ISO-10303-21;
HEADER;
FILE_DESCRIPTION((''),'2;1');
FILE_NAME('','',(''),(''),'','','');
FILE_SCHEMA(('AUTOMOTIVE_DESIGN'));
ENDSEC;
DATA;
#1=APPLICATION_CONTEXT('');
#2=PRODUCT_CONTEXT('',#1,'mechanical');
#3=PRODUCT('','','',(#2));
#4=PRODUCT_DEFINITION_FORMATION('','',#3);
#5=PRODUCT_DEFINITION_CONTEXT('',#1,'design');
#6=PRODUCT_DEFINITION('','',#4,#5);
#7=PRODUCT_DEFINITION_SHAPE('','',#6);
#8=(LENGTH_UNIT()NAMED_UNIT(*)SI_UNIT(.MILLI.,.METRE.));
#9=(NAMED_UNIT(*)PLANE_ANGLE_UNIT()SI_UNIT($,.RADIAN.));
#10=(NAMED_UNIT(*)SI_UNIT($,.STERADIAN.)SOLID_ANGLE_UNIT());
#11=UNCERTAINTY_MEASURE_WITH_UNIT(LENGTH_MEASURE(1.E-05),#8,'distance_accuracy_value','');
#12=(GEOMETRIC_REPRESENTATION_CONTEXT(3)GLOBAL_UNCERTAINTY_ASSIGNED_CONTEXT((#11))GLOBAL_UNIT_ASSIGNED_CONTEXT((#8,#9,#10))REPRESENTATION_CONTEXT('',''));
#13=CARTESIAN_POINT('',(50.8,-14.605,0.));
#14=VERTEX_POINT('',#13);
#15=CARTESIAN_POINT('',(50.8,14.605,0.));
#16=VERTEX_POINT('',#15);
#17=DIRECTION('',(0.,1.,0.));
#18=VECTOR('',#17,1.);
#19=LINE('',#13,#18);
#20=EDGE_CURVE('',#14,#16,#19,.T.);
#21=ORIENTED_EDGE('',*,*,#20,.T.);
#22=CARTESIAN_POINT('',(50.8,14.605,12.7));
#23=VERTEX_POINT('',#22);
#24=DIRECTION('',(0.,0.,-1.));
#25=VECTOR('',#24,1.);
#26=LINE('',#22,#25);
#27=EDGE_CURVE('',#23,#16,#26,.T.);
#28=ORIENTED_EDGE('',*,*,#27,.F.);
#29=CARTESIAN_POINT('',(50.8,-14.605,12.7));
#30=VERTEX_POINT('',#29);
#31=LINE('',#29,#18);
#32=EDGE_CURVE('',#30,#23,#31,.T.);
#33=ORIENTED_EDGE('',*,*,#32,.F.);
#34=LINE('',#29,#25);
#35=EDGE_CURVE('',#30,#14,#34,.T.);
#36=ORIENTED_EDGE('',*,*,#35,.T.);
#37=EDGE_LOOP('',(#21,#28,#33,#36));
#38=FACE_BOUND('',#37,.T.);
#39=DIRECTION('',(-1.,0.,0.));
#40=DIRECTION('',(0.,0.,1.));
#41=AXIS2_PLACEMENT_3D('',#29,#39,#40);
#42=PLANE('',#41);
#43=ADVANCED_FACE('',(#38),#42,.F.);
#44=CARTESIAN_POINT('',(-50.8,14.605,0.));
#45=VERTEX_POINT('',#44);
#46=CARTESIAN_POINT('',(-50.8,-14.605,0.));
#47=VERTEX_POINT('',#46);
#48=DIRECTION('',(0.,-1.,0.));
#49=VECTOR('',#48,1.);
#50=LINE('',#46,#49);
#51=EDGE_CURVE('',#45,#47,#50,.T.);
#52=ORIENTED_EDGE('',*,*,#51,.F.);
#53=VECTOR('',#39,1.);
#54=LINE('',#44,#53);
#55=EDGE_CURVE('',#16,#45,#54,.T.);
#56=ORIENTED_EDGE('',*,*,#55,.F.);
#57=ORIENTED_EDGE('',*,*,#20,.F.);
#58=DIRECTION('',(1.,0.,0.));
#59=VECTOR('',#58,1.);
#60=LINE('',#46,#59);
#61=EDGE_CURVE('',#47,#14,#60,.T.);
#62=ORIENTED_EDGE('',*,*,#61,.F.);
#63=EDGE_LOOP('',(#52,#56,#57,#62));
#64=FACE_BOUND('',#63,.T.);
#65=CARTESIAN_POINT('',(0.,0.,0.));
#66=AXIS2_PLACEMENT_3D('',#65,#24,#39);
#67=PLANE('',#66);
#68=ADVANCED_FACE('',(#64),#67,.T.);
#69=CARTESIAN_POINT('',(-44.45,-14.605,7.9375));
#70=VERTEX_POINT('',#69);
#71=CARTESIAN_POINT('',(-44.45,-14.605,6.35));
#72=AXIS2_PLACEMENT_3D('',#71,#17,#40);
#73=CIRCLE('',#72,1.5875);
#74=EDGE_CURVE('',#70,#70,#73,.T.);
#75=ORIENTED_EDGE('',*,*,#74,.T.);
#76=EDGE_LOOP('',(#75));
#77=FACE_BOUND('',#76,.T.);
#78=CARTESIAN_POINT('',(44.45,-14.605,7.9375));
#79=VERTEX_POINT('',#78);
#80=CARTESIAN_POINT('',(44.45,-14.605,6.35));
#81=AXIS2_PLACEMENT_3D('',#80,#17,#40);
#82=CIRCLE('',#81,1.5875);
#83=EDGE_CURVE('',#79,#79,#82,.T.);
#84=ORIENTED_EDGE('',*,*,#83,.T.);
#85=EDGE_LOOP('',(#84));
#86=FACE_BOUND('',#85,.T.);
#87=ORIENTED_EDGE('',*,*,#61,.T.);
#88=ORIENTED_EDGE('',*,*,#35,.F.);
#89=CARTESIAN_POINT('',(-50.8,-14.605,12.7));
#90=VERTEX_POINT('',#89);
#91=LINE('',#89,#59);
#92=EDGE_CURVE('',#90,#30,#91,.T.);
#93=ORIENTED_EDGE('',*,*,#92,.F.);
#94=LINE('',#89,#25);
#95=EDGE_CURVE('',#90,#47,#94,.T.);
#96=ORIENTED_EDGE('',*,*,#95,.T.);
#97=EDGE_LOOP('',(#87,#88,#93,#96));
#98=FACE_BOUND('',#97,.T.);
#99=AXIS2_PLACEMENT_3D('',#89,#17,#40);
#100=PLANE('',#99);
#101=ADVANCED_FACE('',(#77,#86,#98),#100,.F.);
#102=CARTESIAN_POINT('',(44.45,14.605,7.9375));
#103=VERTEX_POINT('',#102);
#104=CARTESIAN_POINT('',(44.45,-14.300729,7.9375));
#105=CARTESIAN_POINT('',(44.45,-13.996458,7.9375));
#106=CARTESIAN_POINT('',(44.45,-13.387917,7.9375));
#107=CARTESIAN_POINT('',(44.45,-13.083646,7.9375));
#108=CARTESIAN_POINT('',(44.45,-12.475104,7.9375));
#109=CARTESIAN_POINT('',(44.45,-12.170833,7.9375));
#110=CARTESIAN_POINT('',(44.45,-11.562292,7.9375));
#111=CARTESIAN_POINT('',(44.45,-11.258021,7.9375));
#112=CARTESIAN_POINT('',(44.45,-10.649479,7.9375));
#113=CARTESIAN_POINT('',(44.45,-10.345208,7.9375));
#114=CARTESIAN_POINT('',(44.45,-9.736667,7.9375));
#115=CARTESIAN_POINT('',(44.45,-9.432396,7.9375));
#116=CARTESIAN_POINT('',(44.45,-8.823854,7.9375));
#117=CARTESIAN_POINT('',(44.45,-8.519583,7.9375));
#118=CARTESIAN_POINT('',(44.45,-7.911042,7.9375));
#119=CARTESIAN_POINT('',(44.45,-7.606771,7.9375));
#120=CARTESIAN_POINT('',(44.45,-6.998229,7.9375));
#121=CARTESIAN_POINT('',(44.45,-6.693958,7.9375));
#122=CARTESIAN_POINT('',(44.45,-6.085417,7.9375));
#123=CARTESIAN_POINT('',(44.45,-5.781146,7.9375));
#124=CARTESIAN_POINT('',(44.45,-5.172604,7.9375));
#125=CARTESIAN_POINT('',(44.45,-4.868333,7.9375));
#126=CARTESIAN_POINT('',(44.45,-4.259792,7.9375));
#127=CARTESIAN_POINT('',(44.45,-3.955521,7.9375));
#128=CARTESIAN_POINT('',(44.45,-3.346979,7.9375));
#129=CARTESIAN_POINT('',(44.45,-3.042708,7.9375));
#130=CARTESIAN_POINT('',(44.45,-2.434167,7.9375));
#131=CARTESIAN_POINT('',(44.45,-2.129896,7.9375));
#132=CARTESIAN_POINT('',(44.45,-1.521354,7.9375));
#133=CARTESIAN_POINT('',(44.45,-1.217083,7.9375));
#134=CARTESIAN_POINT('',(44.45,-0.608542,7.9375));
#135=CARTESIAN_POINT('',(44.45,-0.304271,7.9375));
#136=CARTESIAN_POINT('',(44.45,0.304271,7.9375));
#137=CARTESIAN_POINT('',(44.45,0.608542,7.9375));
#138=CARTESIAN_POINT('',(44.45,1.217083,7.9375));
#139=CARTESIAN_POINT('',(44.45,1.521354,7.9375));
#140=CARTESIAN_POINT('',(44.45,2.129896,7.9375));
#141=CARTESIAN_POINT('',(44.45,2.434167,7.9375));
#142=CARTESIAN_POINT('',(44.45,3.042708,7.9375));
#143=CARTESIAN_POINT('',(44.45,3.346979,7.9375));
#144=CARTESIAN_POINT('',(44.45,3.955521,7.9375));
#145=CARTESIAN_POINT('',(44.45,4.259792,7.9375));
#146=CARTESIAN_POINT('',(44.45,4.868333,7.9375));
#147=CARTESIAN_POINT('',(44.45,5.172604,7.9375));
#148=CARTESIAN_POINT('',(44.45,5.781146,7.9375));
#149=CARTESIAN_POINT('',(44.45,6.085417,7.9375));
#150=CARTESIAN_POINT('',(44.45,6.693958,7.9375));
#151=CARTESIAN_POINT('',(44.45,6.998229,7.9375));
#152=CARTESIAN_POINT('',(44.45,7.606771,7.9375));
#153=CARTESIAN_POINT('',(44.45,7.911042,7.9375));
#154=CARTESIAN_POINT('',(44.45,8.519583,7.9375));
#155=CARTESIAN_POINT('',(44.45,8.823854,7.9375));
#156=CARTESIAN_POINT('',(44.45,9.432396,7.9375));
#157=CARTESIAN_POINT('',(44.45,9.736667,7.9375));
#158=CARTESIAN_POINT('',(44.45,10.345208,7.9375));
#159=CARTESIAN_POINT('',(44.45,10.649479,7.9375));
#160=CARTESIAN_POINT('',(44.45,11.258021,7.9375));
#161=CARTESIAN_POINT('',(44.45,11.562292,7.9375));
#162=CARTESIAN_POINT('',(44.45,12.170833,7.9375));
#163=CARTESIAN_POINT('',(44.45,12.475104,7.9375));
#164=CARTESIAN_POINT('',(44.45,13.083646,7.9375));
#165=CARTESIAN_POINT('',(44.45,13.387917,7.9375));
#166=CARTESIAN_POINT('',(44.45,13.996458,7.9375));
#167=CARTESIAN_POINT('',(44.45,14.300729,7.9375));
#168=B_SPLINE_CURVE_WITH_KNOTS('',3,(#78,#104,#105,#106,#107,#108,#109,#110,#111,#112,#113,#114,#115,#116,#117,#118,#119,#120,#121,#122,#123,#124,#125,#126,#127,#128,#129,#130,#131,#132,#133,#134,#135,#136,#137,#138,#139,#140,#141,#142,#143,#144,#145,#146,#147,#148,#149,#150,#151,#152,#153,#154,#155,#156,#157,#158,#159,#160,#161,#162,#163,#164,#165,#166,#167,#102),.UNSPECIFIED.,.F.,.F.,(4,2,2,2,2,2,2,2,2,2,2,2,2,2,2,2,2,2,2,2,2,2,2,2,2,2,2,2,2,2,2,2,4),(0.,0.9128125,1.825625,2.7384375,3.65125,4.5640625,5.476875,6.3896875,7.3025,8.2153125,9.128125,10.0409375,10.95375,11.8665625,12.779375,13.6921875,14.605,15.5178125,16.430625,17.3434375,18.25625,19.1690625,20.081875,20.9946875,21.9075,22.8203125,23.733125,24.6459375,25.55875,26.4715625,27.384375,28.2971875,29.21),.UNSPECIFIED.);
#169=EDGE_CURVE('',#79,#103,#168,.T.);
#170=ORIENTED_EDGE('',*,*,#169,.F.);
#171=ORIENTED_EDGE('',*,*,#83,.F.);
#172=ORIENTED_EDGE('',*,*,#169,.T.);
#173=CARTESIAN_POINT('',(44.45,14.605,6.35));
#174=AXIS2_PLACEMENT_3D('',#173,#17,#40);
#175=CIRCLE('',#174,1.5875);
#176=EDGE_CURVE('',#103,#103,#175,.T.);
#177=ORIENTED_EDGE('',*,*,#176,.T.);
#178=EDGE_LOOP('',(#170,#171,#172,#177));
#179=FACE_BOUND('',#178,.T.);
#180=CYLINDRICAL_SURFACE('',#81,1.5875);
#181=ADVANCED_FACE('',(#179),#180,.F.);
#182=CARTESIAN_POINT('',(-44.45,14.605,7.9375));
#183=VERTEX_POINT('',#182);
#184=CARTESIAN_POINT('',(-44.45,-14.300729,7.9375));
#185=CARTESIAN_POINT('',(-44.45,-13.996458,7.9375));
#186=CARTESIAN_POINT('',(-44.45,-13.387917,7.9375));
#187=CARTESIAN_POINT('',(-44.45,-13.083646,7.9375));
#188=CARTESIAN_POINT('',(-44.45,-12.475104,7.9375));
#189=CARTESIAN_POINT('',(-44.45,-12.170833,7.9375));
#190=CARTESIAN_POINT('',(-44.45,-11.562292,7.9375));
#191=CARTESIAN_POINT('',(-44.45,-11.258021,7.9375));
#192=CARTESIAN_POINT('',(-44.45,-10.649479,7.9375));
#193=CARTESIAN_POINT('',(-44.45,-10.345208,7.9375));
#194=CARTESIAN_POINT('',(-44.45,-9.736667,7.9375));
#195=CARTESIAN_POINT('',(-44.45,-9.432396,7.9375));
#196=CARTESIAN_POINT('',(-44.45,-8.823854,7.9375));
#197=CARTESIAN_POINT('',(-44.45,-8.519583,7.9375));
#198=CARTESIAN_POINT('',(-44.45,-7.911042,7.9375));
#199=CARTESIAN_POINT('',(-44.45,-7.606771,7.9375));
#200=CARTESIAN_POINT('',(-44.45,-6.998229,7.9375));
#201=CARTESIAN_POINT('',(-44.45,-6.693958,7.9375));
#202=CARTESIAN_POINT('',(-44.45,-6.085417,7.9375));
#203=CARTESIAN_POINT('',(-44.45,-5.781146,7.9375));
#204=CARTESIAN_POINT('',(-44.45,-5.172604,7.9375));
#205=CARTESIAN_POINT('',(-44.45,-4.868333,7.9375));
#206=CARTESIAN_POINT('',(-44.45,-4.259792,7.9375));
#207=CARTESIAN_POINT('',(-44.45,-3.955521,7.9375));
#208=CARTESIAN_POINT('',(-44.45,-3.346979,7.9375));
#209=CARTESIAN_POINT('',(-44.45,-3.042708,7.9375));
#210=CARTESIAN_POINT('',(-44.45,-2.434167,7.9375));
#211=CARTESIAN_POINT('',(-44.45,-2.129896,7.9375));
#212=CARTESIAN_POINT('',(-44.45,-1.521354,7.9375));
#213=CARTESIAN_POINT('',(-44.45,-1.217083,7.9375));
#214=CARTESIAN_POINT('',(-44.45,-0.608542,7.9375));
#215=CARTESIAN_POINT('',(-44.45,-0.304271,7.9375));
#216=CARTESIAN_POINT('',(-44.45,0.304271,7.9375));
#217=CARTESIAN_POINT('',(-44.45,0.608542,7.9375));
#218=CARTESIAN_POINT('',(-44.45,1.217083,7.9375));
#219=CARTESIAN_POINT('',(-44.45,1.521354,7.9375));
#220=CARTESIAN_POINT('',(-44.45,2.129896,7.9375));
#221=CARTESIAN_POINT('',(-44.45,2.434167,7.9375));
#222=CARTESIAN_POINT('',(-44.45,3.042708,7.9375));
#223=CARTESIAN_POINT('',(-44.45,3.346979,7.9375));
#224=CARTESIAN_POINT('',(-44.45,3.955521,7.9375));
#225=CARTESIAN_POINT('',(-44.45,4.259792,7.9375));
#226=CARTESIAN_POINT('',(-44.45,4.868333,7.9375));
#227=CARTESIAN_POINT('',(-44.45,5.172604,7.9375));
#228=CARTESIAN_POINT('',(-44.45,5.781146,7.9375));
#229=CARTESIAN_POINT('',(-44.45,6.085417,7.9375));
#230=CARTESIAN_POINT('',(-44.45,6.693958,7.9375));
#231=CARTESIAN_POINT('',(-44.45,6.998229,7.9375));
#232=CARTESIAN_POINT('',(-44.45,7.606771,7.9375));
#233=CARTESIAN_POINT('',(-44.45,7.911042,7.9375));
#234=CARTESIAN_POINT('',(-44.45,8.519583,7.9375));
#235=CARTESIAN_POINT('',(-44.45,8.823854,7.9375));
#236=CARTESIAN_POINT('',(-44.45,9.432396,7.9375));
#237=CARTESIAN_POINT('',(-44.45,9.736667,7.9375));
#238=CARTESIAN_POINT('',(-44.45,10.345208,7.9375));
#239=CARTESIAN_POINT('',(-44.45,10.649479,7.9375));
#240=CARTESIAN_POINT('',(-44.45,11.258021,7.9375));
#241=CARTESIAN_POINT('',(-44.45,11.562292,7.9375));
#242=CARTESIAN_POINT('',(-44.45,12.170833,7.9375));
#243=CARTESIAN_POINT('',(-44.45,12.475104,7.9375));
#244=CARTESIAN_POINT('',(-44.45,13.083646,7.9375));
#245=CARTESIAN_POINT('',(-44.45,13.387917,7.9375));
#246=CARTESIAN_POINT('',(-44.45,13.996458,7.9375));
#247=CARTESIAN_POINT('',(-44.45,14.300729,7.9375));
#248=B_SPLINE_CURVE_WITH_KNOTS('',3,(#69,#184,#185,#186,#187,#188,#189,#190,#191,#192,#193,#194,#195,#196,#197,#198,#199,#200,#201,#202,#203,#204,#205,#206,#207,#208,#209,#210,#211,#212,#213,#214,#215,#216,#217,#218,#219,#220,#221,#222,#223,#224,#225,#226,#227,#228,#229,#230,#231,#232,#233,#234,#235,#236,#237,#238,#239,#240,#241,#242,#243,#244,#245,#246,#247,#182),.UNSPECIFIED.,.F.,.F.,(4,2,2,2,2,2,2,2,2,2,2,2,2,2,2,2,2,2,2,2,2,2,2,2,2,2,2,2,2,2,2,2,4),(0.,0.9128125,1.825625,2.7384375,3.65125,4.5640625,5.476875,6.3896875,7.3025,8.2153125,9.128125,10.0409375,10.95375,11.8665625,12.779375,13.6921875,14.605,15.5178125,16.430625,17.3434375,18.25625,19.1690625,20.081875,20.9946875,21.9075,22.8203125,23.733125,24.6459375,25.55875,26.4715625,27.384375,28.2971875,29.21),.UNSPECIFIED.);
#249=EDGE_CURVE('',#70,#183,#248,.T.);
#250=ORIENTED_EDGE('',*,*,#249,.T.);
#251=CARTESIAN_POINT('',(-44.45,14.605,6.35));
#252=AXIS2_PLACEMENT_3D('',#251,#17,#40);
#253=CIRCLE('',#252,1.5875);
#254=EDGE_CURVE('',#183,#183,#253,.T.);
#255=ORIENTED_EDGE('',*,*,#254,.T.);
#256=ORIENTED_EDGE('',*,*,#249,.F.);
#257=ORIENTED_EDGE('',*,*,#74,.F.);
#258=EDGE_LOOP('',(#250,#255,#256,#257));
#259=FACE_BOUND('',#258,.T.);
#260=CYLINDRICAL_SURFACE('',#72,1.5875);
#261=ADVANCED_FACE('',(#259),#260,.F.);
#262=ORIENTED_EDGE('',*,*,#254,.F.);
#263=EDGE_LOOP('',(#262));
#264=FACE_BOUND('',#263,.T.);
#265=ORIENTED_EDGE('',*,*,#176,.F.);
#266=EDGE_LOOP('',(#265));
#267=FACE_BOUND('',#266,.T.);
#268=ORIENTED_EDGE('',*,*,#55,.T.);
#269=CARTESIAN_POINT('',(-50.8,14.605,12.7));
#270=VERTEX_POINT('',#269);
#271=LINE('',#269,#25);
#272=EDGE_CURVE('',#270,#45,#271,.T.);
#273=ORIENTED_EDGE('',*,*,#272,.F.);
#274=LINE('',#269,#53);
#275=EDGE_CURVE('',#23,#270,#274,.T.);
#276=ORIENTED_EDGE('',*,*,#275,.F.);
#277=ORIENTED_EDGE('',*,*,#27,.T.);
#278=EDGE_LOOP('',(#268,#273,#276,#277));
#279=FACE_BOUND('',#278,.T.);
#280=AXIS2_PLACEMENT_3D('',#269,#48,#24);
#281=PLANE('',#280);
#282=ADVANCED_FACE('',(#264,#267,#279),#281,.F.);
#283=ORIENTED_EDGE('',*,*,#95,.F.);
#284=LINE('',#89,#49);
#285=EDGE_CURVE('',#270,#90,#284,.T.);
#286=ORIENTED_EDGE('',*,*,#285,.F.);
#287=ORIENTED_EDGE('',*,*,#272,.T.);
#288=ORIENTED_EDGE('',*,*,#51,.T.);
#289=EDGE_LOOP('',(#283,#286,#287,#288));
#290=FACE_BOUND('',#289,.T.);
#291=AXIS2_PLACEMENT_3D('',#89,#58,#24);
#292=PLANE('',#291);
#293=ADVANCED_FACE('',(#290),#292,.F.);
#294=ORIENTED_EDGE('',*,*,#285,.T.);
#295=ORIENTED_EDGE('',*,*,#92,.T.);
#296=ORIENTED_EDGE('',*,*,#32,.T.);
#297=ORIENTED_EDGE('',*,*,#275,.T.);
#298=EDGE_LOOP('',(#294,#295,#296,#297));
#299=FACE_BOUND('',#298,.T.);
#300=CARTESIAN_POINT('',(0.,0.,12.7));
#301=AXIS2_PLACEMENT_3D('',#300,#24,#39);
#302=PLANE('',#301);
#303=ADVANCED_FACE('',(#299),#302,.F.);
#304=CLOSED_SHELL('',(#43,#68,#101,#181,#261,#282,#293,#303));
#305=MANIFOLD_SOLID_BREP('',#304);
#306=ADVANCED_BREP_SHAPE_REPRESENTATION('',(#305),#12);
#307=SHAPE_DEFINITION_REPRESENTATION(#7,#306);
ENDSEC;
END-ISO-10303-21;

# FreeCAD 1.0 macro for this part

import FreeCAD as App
import Part
import Sketcher
from FreeCAD import Vector
Q = App.Units.Quantity

doc = App.newDocument("Part")
body = doc.addObject("PartDesign::Body", "Body")

# Sketch on XY plane
sketch1 = body.newObject("Sketcher::SketchObject", "Sketch")
sketch1.AttachmentSupport = (doc.getObject("XY_Plane"), [""])
sketch1.MapMode = "FlatFace"
sketch1.addGeometry(Part.LineSegment(Vector(-51, 15, 0), Vector(-51, -15, 0)), False)
sketch1.addGeometry(Part.LineSegment(Vector(-51, -15, 0), Vector(51, -15, 0)), False)
sketch1.addGeometry(Part.LineSegment(Vector(51, -15, 0), Vector(51, 15, 0)), False)
sketch1.addGeometry(Part.LineSegment(Vector(51, 15, 0), Vector(-51, 15, 0)), False)
sketch1.addConstraint(Sketcher.Constraint("Coincident", 0, 2, 1, 1))
sketch1.addConstraint(Sketcher.Constraint("Coincident", 1, 2, 2, 1))
sketch1.addConstraint(Sketcher.Constraint("Coincident", 2, 2, 3, 1))
sketch1.addConstraint(Sketcher.Constraint("Coincident", 3, 2, 0, 1))
sketch1.addConstraint(Sketcher.Constraint("Vertical", 0))
sketch1.addConstraint(Sketcher.Constraint("Horizontal", 1))
sketch1.addConstraint(Sketcher.Constraint("Vertical", 2))
sketch1.addConstraint(Sketcher.Constraint("Horizontal", 3))
sketch1.addConstraint(Sketcher.Constraint("Symmetric", 0, 2, 2, 2, -1, 1))
sketch1.addConstraint(Sketcher.Constraint("DistanceX", 1, 1, 1, 2, Q("4 in")))
sketch1.addConstraint(Sketcher.Constraint("DistanceY", 0, 2, 0, 1, Q("1.15 in")))
pad1 = body.newObject("PartDesign::Pad", "Pad")
pad1.Profile = sketch1
pad1.Length = Q("0.5 in")

# Sketch on XZ plane
sketch2 = body.newObject("Sketcher::SketchObject", "Sketch001")
sketch2.AttachmentSupport = (doc.getObject("XZ_Plane"), [""])
sketch2.MapMode = "FlatFace"
sketch2.AttachmentOffset = App.Placement(Vector(0, 0, -0.575 * 25.4), App.Rotation())
sketch2.addGeometry(Part.Circle(Vector(-44.5, 6.3, 0), Vector(0, 0, 1), 1.6), False)
sketch2.addGeometry(Part.Circle(Vector(44.5, 6.3, 0), Vector(0, 0, 1), 1.6), False)
sketch2.addConstraint(Sketcher.Constraint("Equal", 0, 1))
sketch2.addConstraint(Sketcher.Constraint("Symmetric", 0, 3, 1, 3, -2))
sketch2.addConstraint(Sketcher.Constraint("Diameter", 0, Q("0.125 in")))
sketch2.addConstraint(Sketcher.Constraint("DistanceX", 0, 3, 1, 3, Q("3.5 in")))
sketch2.addConstraint(Sketcher.Constraint("DistanceY", -1, 1, 0, 3, Q("0.25 in")))
pocket1 = body.newObject("PartDesign::Pocket", "Pocket")
pocket1.Profile = sketch2
pocket1.Type = "ThroughAll"
pocket1.Reversed = True

doc.recompute()
